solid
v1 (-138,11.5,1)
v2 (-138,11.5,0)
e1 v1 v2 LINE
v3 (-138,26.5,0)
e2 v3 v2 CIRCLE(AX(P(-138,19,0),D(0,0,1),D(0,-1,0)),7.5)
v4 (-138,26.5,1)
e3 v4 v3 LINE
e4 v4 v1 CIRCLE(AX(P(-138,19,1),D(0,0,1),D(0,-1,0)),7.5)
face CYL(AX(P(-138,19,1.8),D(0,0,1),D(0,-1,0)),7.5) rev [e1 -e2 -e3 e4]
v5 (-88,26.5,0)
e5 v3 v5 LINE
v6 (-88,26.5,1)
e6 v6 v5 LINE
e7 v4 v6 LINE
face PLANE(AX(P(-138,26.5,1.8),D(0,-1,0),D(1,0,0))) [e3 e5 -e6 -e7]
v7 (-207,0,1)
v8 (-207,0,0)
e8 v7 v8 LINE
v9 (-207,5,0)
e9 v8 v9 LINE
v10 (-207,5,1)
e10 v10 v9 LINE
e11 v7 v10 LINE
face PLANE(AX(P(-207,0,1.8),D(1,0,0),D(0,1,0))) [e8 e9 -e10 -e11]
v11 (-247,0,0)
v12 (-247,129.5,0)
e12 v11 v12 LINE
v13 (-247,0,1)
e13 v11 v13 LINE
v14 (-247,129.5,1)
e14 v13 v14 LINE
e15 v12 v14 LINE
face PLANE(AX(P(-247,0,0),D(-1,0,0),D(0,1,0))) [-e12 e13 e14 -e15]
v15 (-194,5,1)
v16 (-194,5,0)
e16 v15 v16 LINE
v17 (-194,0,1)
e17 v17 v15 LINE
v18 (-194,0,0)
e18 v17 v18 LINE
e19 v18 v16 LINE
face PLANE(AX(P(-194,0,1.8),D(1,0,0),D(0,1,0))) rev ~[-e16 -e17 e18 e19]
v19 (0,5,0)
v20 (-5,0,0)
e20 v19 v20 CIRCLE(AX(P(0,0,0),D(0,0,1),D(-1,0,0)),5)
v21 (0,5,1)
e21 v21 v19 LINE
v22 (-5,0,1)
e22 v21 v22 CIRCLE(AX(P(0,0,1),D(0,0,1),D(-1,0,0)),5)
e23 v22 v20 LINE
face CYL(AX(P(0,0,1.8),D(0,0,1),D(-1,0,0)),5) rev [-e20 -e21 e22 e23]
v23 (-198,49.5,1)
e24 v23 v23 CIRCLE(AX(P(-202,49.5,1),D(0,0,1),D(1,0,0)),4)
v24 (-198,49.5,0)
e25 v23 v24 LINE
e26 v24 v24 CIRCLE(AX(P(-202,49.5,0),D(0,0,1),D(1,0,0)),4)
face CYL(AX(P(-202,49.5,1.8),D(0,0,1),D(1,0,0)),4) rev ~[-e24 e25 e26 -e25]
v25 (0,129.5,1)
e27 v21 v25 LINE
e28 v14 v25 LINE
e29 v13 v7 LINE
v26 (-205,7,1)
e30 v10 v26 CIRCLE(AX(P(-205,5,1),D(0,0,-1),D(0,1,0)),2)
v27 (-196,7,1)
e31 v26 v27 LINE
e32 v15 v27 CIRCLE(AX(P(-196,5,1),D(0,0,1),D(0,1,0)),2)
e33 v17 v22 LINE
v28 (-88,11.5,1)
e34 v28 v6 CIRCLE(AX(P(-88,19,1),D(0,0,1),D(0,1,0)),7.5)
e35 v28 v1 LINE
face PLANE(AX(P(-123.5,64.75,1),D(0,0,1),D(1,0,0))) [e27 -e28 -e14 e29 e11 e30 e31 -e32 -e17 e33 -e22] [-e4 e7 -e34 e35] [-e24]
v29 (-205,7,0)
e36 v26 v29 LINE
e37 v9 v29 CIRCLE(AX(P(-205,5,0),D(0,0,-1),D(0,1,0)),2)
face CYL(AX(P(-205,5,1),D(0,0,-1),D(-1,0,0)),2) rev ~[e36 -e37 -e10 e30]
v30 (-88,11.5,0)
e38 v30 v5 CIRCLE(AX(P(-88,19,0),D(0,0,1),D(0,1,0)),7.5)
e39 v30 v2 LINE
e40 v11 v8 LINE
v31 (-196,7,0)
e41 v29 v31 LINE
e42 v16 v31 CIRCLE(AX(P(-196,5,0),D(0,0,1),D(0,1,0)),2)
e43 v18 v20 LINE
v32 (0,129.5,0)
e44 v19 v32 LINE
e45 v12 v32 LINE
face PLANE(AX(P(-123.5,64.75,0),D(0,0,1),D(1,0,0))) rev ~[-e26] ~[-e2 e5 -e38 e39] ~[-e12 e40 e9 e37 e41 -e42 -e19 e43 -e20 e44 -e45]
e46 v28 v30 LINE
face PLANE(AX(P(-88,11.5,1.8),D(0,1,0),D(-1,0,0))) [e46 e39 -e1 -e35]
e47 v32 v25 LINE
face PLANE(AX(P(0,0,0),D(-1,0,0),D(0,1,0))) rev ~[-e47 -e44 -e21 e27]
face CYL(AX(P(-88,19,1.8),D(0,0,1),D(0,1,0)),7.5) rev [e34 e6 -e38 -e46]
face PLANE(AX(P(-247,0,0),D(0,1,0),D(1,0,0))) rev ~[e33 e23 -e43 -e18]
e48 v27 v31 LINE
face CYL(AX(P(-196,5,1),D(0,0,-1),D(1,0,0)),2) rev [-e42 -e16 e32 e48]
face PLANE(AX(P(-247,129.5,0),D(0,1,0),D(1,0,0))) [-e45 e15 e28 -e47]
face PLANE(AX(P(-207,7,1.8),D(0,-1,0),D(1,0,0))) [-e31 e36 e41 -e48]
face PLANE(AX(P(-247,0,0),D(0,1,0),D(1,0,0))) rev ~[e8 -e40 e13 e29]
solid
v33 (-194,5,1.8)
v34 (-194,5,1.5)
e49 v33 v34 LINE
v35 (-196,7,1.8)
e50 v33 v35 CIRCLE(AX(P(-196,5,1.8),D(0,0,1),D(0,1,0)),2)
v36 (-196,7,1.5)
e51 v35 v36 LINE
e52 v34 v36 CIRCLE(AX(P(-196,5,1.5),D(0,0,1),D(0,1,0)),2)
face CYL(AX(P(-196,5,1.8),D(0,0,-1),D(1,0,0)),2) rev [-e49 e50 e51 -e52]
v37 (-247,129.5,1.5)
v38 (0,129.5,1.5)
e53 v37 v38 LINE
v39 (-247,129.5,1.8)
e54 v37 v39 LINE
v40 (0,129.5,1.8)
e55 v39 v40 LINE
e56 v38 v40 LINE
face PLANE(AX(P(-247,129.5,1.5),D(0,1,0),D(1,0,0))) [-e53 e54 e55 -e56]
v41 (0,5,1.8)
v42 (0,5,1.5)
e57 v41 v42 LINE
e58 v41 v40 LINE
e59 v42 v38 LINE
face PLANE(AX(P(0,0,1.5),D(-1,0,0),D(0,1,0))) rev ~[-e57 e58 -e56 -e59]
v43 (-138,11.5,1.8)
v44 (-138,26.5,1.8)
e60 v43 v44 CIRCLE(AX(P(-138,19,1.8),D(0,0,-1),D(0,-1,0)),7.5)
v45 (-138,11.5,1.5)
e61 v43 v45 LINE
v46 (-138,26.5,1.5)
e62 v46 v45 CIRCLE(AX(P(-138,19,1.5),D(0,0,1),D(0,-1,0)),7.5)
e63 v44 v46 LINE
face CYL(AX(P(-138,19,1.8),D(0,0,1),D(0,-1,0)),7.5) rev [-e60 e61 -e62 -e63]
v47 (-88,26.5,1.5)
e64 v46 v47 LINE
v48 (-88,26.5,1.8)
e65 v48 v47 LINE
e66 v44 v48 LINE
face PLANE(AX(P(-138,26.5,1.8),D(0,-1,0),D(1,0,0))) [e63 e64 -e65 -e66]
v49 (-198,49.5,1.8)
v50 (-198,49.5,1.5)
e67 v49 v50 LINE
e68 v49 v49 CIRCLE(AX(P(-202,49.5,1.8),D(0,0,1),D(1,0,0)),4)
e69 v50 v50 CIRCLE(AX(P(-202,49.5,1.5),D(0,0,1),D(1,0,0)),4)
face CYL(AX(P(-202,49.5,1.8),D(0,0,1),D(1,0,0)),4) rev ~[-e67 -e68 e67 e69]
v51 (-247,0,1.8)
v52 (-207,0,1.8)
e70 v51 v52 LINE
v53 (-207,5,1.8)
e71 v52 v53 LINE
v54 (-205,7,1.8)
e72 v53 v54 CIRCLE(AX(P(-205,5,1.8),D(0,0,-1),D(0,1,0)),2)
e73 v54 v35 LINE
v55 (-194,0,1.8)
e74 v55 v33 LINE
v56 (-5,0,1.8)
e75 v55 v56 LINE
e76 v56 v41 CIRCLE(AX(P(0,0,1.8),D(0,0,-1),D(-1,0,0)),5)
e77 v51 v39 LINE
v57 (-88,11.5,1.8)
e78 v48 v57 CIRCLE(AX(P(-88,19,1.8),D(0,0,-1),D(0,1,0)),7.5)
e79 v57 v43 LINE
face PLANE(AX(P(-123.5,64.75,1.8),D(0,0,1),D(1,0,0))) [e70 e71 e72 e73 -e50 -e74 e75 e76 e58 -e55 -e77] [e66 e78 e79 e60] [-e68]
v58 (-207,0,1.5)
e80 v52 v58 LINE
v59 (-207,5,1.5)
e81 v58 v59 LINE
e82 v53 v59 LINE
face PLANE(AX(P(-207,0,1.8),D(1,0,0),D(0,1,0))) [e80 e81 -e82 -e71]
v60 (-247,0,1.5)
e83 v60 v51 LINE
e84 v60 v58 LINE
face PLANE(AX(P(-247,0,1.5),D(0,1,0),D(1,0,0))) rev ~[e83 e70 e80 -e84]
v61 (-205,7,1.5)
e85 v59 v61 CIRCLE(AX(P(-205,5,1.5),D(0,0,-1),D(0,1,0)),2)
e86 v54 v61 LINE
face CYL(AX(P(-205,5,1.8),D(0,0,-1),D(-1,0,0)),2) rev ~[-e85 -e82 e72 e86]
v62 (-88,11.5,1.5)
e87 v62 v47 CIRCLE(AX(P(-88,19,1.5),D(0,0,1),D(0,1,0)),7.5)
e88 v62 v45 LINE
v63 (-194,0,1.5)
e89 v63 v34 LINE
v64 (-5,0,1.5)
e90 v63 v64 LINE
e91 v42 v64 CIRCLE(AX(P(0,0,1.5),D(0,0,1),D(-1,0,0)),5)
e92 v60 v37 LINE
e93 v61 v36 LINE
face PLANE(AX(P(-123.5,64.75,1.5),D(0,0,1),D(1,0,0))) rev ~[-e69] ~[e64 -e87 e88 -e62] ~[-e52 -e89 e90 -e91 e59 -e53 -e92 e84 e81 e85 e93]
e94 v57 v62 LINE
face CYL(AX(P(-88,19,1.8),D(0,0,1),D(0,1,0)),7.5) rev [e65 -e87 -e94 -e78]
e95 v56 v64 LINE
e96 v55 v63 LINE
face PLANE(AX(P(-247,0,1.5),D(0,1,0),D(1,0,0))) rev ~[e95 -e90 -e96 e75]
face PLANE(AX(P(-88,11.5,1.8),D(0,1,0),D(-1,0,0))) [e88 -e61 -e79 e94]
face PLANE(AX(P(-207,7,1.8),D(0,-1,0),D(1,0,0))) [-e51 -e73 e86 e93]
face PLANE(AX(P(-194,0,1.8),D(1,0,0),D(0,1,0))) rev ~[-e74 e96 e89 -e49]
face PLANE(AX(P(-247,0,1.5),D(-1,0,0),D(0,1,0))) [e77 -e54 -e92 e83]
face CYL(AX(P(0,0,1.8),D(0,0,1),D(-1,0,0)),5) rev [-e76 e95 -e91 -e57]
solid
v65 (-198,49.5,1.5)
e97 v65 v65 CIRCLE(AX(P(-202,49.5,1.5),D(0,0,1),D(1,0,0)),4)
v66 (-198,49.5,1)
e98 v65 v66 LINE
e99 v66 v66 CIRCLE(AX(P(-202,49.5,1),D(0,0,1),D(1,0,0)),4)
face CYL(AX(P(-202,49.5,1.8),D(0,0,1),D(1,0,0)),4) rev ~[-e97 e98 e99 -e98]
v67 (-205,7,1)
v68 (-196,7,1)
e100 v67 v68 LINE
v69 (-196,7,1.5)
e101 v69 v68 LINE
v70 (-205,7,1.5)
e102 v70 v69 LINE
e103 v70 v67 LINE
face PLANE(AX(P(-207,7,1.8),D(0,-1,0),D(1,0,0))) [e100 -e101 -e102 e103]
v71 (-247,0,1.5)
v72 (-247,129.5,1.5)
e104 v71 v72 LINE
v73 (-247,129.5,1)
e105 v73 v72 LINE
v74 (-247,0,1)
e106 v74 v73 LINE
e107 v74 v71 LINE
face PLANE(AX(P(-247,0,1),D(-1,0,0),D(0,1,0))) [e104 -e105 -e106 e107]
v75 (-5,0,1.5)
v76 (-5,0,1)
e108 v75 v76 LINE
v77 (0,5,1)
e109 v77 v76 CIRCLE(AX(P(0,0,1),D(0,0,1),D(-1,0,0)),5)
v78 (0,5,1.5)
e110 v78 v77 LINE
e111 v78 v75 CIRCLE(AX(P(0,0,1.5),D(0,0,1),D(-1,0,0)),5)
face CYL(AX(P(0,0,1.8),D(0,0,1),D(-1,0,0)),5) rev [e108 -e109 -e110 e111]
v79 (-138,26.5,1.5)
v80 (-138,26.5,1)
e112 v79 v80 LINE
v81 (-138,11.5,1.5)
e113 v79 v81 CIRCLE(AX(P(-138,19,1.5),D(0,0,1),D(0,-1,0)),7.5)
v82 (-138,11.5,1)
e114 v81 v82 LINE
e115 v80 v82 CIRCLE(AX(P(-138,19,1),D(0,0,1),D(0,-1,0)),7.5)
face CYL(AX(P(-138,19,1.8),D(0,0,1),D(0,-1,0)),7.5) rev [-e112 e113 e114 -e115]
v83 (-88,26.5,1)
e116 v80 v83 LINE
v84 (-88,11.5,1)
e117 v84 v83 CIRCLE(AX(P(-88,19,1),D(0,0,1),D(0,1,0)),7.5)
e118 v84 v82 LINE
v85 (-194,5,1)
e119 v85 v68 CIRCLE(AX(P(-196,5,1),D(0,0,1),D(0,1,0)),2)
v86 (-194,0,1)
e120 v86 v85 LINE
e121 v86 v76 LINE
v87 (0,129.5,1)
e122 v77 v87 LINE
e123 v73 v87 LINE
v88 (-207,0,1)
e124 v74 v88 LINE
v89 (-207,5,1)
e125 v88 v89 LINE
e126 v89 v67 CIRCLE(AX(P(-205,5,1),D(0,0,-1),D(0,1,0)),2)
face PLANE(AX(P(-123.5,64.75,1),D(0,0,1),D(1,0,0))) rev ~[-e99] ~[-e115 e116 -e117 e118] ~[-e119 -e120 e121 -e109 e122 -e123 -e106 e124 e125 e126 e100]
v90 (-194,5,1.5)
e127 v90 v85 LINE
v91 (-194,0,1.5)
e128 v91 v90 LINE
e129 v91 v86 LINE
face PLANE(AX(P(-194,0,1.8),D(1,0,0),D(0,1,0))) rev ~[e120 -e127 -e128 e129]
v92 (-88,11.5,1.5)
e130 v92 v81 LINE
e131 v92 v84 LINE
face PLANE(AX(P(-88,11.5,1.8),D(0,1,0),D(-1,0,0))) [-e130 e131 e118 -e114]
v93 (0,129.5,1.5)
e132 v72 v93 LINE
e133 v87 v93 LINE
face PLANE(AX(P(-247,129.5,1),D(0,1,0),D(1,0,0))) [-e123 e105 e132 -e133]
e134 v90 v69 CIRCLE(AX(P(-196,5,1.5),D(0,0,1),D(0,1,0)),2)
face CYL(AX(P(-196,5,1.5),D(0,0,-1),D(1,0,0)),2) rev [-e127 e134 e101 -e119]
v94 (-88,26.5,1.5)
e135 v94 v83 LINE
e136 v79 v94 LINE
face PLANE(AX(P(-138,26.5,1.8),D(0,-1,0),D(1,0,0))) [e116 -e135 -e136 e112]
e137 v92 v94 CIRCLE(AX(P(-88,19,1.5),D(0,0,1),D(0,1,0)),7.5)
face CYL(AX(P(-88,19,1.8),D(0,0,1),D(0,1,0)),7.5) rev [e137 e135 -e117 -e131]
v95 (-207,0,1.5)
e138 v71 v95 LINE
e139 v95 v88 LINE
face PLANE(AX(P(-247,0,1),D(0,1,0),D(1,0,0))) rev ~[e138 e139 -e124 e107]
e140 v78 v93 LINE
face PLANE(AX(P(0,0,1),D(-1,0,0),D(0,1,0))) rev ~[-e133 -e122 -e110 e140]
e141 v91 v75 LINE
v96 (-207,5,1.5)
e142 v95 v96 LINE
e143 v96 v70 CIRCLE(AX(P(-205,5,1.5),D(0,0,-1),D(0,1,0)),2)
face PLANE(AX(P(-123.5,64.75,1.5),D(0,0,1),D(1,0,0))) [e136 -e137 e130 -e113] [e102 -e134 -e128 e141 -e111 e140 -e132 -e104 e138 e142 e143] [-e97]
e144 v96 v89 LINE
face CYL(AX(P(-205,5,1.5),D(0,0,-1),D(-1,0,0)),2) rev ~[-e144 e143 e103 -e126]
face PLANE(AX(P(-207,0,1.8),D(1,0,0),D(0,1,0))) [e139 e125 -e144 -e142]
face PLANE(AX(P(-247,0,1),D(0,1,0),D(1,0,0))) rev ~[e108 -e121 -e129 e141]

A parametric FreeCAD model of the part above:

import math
import FreeCAD as App
import Part
import Sketcher
from FreeCAD import Vector
Q = App.Units.Quantity


def edges_at(feature, points):
    """Names of the edges that pass closest to the given points."""
    edges = feature.Shape.Edges
    near = lambda p: min(range(len(edges)), key=lambda i: edges[i].distToShape(Part.Vertex(*p))[0])
    return sorted({f"Edge{near(p) + 1}" for p in points})


def add_polygon(sketch, points):
    """Adds a closed chain of lines whose ends are joined by coincident constraints."""
    first, n = sketch.GeometryCount, len(points)
    for a, b in zip(points, points[1:] + points[:1]):
        sketch.addGeometry(Part.LineSegment(App.Vector(*a, 0), App.Vector(*b, 0)), False)
    for i in range(n):
        sketch.addConstraint(Sketcher.Constraint("Coincident", first + i, 2, first + (i + 1) % n, 1))

doc = App.newDocument("Part")
body = doc.addObject("PartDesign::Body", "Body")

# Sketch on XY plane
sketch1 = body.newObject("Sketcher::SketchObject", "Sketch")
sketch1.AttachmentSupport = (doc.getObject("XY_Plane"), [""])
sketch1.MapMode = "FlatFace"
add_polygon(sketch1, [(-247, 129.5), (-247, 0), (0, 0), (0, 129.5)])  # lines 0-3
sketch1.addConstraint([
    Sketcher.Constraint("Vertical", 0),
    Sketcher.Constraint("Horizontal", 1),
    Sketcher.Constraint("Vertical", 2),
    Sketcher.Constraint("Horizontal", 3),
    Sketcher.Constraint("Coincident", 1, 2, -1, 1),
    Sketcher.Constraint("DistanceX", 1, 1, 1, 2, Q("247 mm")),
    Sketcher.Constraint("DistanceY", 0, 2, 0, 1, Q("129.5 mm")),
])
pad1 = body.newObject("PartDesign::Pad", "Pad")
pad1.Profile = sketch1
pad1.Length = 1
body2 = doc.addObject("PartDesign::Body", "Body001")

# Sketch on XY plane
sketch2 = body2.newObject("Sketcher::SketchObject", "Sketch001")
sketch2.AttachmentSupport = (doc.getObject("XY_Plane001"), [""])
sketch2.MapMode = "FlatFace"
sketch2.AttachmentOffset = App.Placement(Vector(0, 0, 1), App.Rotation())
add_polygon(sketch2, [(-247, 129.5), (-247, 0), (0, 0), (0, 129.5)])  # lines 0-3
sketch2.addConstraint([
    Sketcher.Constraint("Vertical", 0),
    Sketcher.Constraint("Horizontal", 1),
    Sketcher.Constraint("Vertical", 2),
    Sketcher.Constraint("Horizontal", 3),
    Sketcher.Constraint("Coincident", 1, 2, -1, 1),
    Sketcher.Constraint("DistanceX", 1, 1, 1, 2, Q("247 mm")),
    Sketcher.Constraint("DistanceY", 0, 2, 0, 1, Q("129.5 mm")),
])
pad2 = body2.newObject("PartDesign::Pad", "Pad001")
pad2.Profile = sketch2
pad2.Length = 0.5
body3 = doc.addObject("PartDesign::Body", "Body002")

# Sketch on XY plane
sketch3 = body3.newObject("Sketcher::SketchObject", "Sketch002")
sketch3.AttachmentSupport = (doc.getObject("XY_Plane002"), [""])
sketch3.MapMode = "FlatFace"
sketch3.AttachmentOffset = App.Placement(Vector(0, 0, 1.5), App.Rotation())
add_polygon(sketch3, [(-247, 129.5), (-247, 0), (0, 0), (0, 129.5)])  # lines 0-3
sketch3.addConstraint([
    Sketcher.Constraint("Vertical", 0),
    Sketcher.Constraint("Horizontal", 1),
    Sketcher.Constraint("Vertical", 2),
    Sketcher.Constraint("Horizontal", 3),
    Sketcher.Constraint("Coincident", 1, 2, -1, 1),
    Sketcher.Constraint("DistanceX", 1, 1, 1, 2, Q("247 mm")),
    Sketcher.Constraint("DistanceY", 0, 2, 0, 1, Q("129.5 mm")),
])
pad3 = body3.newObject("PartDesign::Pad", "Pad002")
pad3.Profile = sketch3
pad3.Length = 0.3
body4 = doc.addObject("PartDesign::Body", "Body003")

# Sketch on XY plane
sketch4 = body4.newObject("Sketcher::SketchObject", "Sketch003")
sketch4.AttachmentSupport = (doc.getObject("XY_Plane003"), [""])
sketch4.MapMode = "FlatFace"
sketch4.AttachmentOffset = App.Placement(Vector(0, 0, 1.8), App.Rotation())
sketch4.addGeometry([
    Part.LineSegment(Vector(-88, 26.5, 0), Vector(-138, 26.5, 0)),
    Part.ArcOfCircle(Part.Circle(Vector(-138, 19, 0), Vector(0, 0, 1), 7.5), math.radians(90), math.radians(270)),
    Part.LineSegment(Vector(-138, 11.5, 0), Vector(-88, 11.5, 0)),
    Part.ArcOfCircle(Part.Circle(Vector(-88, 19, 0), Vector(0, 0, 1), 7.5), math.radians(-90), math.radians(90)),
], False)
sketch4.addConstraint([
    Sketcher.Constraint("Tangent", 0, 2, 1, 1),
    Sketcher.Constraint("Tangent", 1, 2, 2, 1),
    Sketcher.Constraint("Tangent", 2, 2, 3, 1),
    Sketcher.Constraint("Tangent", 3, 2, 0, 1),
    Sketcher.Constraint("Horizontal", 0),
    Sketcher.Constraint("Horizontal", 2),
    Sketcher.Constraint("Radius", 1, Q("7.5 mm")),
    Sketcher.Constraint("DistanceX", 0, 2, 0, 1, Q("50 mm")),
    Sketcher.Constraint("DistanceX", 1, 3, -1, 1, Q("138 mm")),
    Sketcher.Constraint("DistanceY", -1, 1, 1, 3, Q("19 mm")),
])
pad4 = body4.newObject("PartDesign::Pad", "Pad003")
pad4.Profile = sketch4
pad4.Length = 2.8
pad4.Reversed = True
doc.recompute()

body5 = doc.addObject("PartDesign::Body", "Body004")
body5.BaseFeature = body4
boolean = body.newObject("PartDesign::Boolean", "Boolean")
boolean.Type = "Cut"
boolean.addObjects([body5])
doc.recompute()

body6 = doc.addObject("PartDesign::Body", "Body005")
body6.BaseFeature = body4
boolean2 = body2.newObject("PartDesign::Boolean", "Boolean001")
boolean2.Type = "Cut"
boolean2.addObjects([body6])
doc.recompute()

boolean3 = body3.newObject("PartDesign::Boolean", "Boolean002")
boolean3.Type = "Cut"
boolean3.addObjects([body4])
body7 = doc.addObject("PartDesign::Body", "Body006")

# Sketch on XY plane
sketch5 = body7.newObject("Sketcher::SketchObject", "Sketch004")
sketch5.AttachmentSupport = (doc.getObject("XY_Plane006"), [""])
sketch5.MapMode = "FlatFace"
sketch5.AttachmentOffset = App.Placement(Vector(0, 0, 1.8), App.Rotation())
sketch5.addGeometry([
    Part.LineSegment(Vector(-5, 0, 0), Vector(0, 0, 0)),
    Part.LineSegment(Vector(0, 0, 0), Vector(0, 5, 0)),
    Part.ArcOfCircle(Part.Circle(Vector(0, 0, 0), Vector(0, 0, 1), 5), math.radians(90), math.radians(180)),
], False)
sketch5.addConstraint([
    Sketcher.Constraint("Coincident", 0, 2, 1, 1),
    Sketcher.Constraint("Coincident", 1, 2, 2, 1),
    Sketcher.Constraint("Coincident", 2, 2, 0, 1),
    Sketcher.Constraint("Horizontal", 0),
    Sketcher.Constraint("Vertical", 1),
    Sketcher.Constraint("Coincident", 2, 3, -1, 1),
    Sketcher.Constraint("Coincident", 0, 2, -1, 1),
    Sketcher.Constraint("Radius", 2, Q("5 mm")),
])
pad5 = body7.newObject("PartDesign::Pad", "Pad004")
pad5.Profile = sketch5
pad5.Length = 2.8
pad5.Reversed = True
doc.recompute()

body8 = doc.addObject("PartDesign::Body", "Body007")
body8.BaseFeature = body7
boolean4 = body.newObject("PartDesign::Boolean", "Boolean003")
boolean4.Type = "Cut"
boolean4.addObjects([body8])
doc.recompute()

body9 = doc.addObject("PartDesign::Body", "Body008")
body9.BaseFeature = body7
boolean5 = body2.newObject("PartDesign::Boolean", "Boolean004")
boolean5.Type = "Cut"
boolean5.addObjects([body9])
doc.recompute()

boolean6 = body3.newObject("PartDesign::Boolean", "Boolean005")
boolean6.Type = "Cut"
boolean6.addObjects([body7])
body10 = doc.addObject("PartDesign::Body", "Body009")

# Sketch on XY plane
sketch6 = body10.newObject("Sketcher::SketchObject", "Sketch005")
sketch6.AttachmentSupport = (doc.getObject("XY_Plane009"), [""])
sketch6.MapMode = "FlatFace"
sketch6.AttachmentOffset = App.Placement(Vector(0, 0, 1.8), App.Rotation())
add_polygon(sketch6, [(-207, 7), (-207, 0), (-194, 0), (-194, 7)])  # lines 0-3
sketch6.addConstraint([
    Sketcher.Constraint("Vertical", 0),
    Sketcher.Constraint("Horizontal", 1),
    Sketcher.Constraint("Vertical", 2),
    Sketcher.Constraint("Horizontal", 3),
    Sketcher.Constraint("PointOnObject", 0, 2, -1),
    Sketcher.Constraint("DistanceX", 1, 1, 1, 2, Q("13 mm")),
    Sketcher.Constraint("DistanceY", 0, 2, 0, 1, Q("7 mm")),
    Sketcher.Constraint("DistanceX", 0, 2, -1, 1, Q("207 mm")),
])
pad6 = body10.newObject("PartDesign::Pad", "Pad005")
pad6.Profile = sketch6
pad6.Length = 2.8
pad6.Reversed = True
doc.recompute()

body11 = doc.addObject("PartDesign::Body", "Body010")
body11.BaseFeature = body10
boolean7 = body.newObject("PartDesign::Boolean", "Boolean006")
boolean7.Type = "Cut"
boolean7.addObjects([body11])
doc.recompute()

fillet = body.newObject("PartDesign::Fillet", "Fillet")
fillet.Base = (boolean7, edges_at(boolean7, [(-207, 7, 0.5), (-194, 7, 0.5)]))
fillet.Radius = 2
doc.recompute()

body12 = doc.addObject("PartDesign::Body", "Body011")
body12.BaseFeature = body10
boolean8 = body2.newObject("PartDesign::Boolean", "Boolean007")
boolean8.Type = "Cut"
boolean8.addObjects([body12])
doc.recompute()

fillet2 = body2.newObject("PartDesign::Fillet", "Fillet001")
fillet2.Base = (boolean8, edges_at(boolean8, [(-207, 7, 1.25), (-194, 7, 1.25)]))
fillet2.Radius = 2
doc.recompute()

boolean9 = body3.newObject("PartDesign::Boolean", "Boolean008")
boolean9.Type = "Cut"
boolean9.addObjects([body10])
doc.recompute()

fillet3 = body3.newObject("PartDesign::Fillet", "Fillet002")
fillet3.Base = (boolean9, edges_at(boolean9, [(-207, 7, 1.65), (-194, 7, 1.65)]))
fillet3.Radius = 2
body13 = doc.addObject("PartDesign::Body", "Body012")

# Sketch on XY plane
sketch7 = body13.newObject("Sketcher::SketchObject", "Sketch006")
sketch7.AttachmentSupport = (doc.getObject("XY_Plane012"), [""])
sketch7.MapMode = "FlatFace"
sketch7.AttachmentOffset = App.Placement(Vector(0, 0, 1.8), App.Rotation())
sketch7.addGeometry(Part.Circle(Vector(-202, 49.5, 0), Vector(0, 0, 1), 4), False)
sketch7.addConstraint([
    Sketcher.Constraint("Diameter", 0, Q("8 mm")),
    Sketcher.Constraint("DistanceX", 0, 3, -1, 1, Q("202 mm")),
    Sketcher.Constraint("DistanceY", -1, 1, 0, 3, Q("49.5 mm")),
])
pad7 = body13.newObject("PartDesign::Pad", "Pad006")
pad7.Profile = sketch7
pad7.Length = 2.8
pad7.Reversed = True
doc.recompute()

body14 = doc.addObject("PartDesign::Body", "Body013")
body14.BaseFeature = body13
boolean10 = body.newObject("PartDesign::Boolean", "Boolean009")
boolean10.Type = "Cut"
boolean10.addObjects([body14])
doc.recompute()

body15 = doc.addObject("PartDesign::Body", "Body014")
body15.BaseFeature = body13
boolean11 = body2.newObject("PartDesign::Boolean", "Boolean010")
boolean11.Type = "Cut"
boolean11.addObjects([body15])
doc.recompute()

boolean12 = body3.newObject("PartDesign::Boolean", "Boolean011")
boolean12.Type = "Cut"
boolean12.addObjects([body13])

doc.recompute()
